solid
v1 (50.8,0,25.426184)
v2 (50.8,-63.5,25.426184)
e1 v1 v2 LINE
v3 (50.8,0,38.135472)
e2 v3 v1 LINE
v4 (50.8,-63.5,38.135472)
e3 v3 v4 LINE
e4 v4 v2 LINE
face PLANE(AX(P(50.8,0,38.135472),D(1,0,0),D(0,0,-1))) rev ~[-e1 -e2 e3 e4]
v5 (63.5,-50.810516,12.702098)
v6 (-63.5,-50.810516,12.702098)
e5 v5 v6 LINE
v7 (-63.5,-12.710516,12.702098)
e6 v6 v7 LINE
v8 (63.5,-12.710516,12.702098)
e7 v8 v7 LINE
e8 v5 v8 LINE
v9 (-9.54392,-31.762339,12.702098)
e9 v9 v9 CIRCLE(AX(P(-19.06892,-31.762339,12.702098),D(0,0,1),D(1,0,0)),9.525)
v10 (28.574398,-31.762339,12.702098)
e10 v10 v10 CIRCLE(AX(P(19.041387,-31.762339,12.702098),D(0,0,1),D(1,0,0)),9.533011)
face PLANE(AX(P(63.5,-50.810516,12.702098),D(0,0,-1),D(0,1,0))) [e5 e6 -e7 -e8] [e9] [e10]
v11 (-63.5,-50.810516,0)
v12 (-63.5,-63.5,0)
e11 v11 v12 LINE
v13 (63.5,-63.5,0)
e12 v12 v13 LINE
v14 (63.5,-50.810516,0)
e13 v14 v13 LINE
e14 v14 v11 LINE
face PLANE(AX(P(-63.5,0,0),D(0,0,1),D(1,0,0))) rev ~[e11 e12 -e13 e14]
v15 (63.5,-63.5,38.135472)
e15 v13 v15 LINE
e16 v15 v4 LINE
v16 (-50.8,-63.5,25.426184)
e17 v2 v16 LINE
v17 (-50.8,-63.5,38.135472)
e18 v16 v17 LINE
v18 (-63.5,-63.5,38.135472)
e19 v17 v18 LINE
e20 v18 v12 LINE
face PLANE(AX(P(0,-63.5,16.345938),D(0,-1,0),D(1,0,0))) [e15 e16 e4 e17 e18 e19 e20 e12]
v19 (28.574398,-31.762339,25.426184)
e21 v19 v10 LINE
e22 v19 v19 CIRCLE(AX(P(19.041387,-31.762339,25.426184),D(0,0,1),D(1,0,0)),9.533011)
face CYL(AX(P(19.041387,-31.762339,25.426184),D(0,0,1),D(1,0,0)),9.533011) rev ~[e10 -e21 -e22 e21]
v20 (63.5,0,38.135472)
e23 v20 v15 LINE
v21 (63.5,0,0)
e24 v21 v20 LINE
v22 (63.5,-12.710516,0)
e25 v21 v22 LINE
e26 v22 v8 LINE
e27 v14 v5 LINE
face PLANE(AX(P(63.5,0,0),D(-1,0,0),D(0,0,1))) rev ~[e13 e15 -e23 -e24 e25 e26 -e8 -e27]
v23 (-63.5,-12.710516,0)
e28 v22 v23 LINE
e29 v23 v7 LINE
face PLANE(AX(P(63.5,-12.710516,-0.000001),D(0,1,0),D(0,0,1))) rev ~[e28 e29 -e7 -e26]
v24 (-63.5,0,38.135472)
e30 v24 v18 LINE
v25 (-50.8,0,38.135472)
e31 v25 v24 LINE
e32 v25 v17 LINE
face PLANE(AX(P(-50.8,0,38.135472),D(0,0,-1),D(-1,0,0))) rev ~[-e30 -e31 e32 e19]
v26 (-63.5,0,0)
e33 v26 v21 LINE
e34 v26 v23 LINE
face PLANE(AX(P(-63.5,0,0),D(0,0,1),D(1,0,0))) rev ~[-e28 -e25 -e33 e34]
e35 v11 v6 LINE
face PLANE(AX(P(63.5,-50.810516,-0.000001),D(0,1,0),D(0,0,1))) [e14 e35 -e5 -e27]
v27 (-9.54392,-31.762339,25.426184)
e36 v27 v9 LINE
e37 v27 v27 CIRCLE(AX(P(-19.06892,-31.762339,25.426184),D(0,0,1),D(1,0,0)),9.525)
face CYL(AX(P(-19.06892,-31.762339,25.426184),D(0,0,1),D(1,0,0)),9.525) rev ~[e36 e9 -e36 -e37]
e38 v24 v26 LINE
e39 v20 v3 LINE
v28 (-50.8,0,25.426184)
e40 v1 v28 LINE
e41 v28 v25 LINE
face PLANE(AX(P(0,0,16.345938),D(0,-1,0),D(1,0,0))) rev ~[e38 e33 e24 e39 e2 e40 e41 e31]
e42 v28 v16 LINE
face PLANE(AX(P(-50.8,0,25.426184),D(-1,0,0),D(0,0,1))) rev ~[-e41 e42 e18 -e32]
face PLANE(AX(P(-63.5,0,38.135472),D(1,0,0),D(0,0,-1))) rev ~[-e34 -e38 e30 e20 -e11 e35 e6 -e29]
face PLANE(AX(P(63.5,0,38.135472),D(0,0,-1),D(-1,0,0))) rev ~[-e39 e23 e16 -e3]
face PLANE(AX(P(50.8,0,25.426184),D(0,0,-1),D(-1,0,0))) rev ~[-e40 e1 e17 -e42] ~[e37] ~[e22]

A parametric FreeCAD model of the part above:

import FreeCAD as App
import Part
import Sketcher

V = App.Vector
Q = App.Units.Quantity


def add_polygon(sketch, points):
    """Adds a closed chain of lines whose ends are joined by coincident constraints."""
    first, n = sketch.GeometryCount, len(points)
    for a, b in zip(points, points[1:] + points[:1]):
        sketch.addGeometry(Part.LineSegment(App.Vector(*a, 0), App.Vector(*b, 0)), False)
    for i in range(n):
        sketch.addConstraint(Sketcher.Constraint("Coincident", first + i, 2, first + (i + 1) % n, 1))

doc = App.newDocument("Part")
body = doc.addObject("PartDesign::Body", "Body")

# Sketch on XZ plane
sketch1 = body.newObject("Sketcher::SketchObject", "Sketch")
sketch1.AttachmentSupport = (doc.getObject("XZ_Plane"), [""])
sketch1.MapMode = "FlatFace"
add_polygon(sketch1, [(-63.5, 0), (63.5, 0), (63.5, 38.135472), (50.8, 38.135472), (50.8, 25.426184), (-50.8, 25.426184), (-50.8, 38.135472), (-63.5, 38.135472)])  # lines 0-7
sketch1.addConstraint([
    Sketcher.Constraint("Horizontal", 0),
    Sketcher.Constraint("Vertical", 1),
    Sketcher.Constraint("Horizontal", 2),
    Sketcher.Constraint("Vertical", 3),
    Sketcher.Constraint("Horizontal", 4),
    Sketcher.Constraint("Vertical", 5),
    Sketcher.Constraint("Horizontal", 6),
    Sketcher.Constraint("Vertical", 7),
    Sketcher.Constraint("Symmetric", 0, 2, 7, 2, -1, 1),
    Sketcher.Constraint("Symmetric", 2, 2, 5, 2, -2),
    Sketcher.Constraint("DistanceX", 0, 1, 0, 2, Q("5 in")),
    Sketcher.Constraint("DistanceX", 4, 2, 4, 1, Q("4 in")),
    Sketcher.Constraint("DistanceY", 3, 2, 3, 1, Q("12.709288 mm")),
    Sketcher.Constraint("DistanceY", 1, 1, 1, 2, Q("38.135472 mm")),
])
pad1 = body.newObject("PartDesign::Pad", "Pad")
pad1.Profile = sketch1
pad1.Length = Q("2.5 in")

# Sketch on YZ plane
sketch2 = body.newObject("Sketcher::SketchObject", "Sketch001")
sketch2.AttachmentSupport = (doc.getObject("YZ_Plane"), [""])
sketch2.MapMode = "FlatFace"
sketch2.AttachmentOffset = App.Placement(V(0, 0, 2.5 * 25.4), App.Rotation())
add_polygon(sketch2, [(-50.810516, 12.702098), (-50.810516, 0), (-12.710516, 0), (-12.710516, 12.702098)])  # lines 0-3
sketch2.addConstraint([
    Sketcher.Constraint("Vertical", 0),
    Sketcher.Constraint("Horizontal", 1),
    Sketcher.Constraint("Vertical", 2),
    Sketcher.Constraint("Horizontal", 3),
    Sketcher.Constraint("PointOnObject", 0, 2, -1),
    Sketcher.Constraint("DistanceX", 1, 1, 1, 2, Q("1.5 in")),
    Sketcher.Constraint("DistanceY", 0, 2, 0, 1, Q("12.702099 mm")),
    Sketcher.Constraint("DistanceX", 0, 2, -1, 1, Q("50.810516 mm")),
])
pocket1 = body.newObject("PartDesign::Pocket", "Pocket")
pocket1.Profile = sketch2
pocket1.Length = Q("5 in")

# Sketch on XY plane
sketch3 = body.newObject("Sketcher::SketchObject", "Sketch002")
sketch3.AttachmentSupport = (doc.getObject("XY_Plane"), [""])
sketch3.MapMode = "FlatFace"
sketch3.AttachmentOffset = App.Placement(V(0, 0, 25.426184), App.Rotation())
sketch3.addGeometry([
    Part.Circle(V(-19.06892, -31.762339, 0), V(0, 0, 1), 9.525),
    Part.Circle(V(19.041387, -31.762339, 0), V(0, 0, 1), 9.533011),
], False)
sketch3.addConstraint([
    Sketcher.Constraint("Horizontal", 0, 3, 1, 3),
    Sketcher.Constraint("Diameter", 0, Q("0.75 in")),
    Sketcher.Constraint("Diameter", 1, Q("19.066022 mm")),
    Sketcher.Constraint("DistanceX", 0, 3, -1, 1, Q("19.06892 mm")),
    Sketcher.Constraint("DistanceY", 0, 3, -1, 1, Q("31.762339 mm")),
    Sketcher.Constraint("DistanceX", -1, 1, 1, 3, Q("19.041387 mm")),
])
pocket2 = body.newObject("PartDesign::Pocket", "Pocket001")
pocket2.Profile = sketch3
pocket2.Length = Q("1.5 in")

doc.recompute()
